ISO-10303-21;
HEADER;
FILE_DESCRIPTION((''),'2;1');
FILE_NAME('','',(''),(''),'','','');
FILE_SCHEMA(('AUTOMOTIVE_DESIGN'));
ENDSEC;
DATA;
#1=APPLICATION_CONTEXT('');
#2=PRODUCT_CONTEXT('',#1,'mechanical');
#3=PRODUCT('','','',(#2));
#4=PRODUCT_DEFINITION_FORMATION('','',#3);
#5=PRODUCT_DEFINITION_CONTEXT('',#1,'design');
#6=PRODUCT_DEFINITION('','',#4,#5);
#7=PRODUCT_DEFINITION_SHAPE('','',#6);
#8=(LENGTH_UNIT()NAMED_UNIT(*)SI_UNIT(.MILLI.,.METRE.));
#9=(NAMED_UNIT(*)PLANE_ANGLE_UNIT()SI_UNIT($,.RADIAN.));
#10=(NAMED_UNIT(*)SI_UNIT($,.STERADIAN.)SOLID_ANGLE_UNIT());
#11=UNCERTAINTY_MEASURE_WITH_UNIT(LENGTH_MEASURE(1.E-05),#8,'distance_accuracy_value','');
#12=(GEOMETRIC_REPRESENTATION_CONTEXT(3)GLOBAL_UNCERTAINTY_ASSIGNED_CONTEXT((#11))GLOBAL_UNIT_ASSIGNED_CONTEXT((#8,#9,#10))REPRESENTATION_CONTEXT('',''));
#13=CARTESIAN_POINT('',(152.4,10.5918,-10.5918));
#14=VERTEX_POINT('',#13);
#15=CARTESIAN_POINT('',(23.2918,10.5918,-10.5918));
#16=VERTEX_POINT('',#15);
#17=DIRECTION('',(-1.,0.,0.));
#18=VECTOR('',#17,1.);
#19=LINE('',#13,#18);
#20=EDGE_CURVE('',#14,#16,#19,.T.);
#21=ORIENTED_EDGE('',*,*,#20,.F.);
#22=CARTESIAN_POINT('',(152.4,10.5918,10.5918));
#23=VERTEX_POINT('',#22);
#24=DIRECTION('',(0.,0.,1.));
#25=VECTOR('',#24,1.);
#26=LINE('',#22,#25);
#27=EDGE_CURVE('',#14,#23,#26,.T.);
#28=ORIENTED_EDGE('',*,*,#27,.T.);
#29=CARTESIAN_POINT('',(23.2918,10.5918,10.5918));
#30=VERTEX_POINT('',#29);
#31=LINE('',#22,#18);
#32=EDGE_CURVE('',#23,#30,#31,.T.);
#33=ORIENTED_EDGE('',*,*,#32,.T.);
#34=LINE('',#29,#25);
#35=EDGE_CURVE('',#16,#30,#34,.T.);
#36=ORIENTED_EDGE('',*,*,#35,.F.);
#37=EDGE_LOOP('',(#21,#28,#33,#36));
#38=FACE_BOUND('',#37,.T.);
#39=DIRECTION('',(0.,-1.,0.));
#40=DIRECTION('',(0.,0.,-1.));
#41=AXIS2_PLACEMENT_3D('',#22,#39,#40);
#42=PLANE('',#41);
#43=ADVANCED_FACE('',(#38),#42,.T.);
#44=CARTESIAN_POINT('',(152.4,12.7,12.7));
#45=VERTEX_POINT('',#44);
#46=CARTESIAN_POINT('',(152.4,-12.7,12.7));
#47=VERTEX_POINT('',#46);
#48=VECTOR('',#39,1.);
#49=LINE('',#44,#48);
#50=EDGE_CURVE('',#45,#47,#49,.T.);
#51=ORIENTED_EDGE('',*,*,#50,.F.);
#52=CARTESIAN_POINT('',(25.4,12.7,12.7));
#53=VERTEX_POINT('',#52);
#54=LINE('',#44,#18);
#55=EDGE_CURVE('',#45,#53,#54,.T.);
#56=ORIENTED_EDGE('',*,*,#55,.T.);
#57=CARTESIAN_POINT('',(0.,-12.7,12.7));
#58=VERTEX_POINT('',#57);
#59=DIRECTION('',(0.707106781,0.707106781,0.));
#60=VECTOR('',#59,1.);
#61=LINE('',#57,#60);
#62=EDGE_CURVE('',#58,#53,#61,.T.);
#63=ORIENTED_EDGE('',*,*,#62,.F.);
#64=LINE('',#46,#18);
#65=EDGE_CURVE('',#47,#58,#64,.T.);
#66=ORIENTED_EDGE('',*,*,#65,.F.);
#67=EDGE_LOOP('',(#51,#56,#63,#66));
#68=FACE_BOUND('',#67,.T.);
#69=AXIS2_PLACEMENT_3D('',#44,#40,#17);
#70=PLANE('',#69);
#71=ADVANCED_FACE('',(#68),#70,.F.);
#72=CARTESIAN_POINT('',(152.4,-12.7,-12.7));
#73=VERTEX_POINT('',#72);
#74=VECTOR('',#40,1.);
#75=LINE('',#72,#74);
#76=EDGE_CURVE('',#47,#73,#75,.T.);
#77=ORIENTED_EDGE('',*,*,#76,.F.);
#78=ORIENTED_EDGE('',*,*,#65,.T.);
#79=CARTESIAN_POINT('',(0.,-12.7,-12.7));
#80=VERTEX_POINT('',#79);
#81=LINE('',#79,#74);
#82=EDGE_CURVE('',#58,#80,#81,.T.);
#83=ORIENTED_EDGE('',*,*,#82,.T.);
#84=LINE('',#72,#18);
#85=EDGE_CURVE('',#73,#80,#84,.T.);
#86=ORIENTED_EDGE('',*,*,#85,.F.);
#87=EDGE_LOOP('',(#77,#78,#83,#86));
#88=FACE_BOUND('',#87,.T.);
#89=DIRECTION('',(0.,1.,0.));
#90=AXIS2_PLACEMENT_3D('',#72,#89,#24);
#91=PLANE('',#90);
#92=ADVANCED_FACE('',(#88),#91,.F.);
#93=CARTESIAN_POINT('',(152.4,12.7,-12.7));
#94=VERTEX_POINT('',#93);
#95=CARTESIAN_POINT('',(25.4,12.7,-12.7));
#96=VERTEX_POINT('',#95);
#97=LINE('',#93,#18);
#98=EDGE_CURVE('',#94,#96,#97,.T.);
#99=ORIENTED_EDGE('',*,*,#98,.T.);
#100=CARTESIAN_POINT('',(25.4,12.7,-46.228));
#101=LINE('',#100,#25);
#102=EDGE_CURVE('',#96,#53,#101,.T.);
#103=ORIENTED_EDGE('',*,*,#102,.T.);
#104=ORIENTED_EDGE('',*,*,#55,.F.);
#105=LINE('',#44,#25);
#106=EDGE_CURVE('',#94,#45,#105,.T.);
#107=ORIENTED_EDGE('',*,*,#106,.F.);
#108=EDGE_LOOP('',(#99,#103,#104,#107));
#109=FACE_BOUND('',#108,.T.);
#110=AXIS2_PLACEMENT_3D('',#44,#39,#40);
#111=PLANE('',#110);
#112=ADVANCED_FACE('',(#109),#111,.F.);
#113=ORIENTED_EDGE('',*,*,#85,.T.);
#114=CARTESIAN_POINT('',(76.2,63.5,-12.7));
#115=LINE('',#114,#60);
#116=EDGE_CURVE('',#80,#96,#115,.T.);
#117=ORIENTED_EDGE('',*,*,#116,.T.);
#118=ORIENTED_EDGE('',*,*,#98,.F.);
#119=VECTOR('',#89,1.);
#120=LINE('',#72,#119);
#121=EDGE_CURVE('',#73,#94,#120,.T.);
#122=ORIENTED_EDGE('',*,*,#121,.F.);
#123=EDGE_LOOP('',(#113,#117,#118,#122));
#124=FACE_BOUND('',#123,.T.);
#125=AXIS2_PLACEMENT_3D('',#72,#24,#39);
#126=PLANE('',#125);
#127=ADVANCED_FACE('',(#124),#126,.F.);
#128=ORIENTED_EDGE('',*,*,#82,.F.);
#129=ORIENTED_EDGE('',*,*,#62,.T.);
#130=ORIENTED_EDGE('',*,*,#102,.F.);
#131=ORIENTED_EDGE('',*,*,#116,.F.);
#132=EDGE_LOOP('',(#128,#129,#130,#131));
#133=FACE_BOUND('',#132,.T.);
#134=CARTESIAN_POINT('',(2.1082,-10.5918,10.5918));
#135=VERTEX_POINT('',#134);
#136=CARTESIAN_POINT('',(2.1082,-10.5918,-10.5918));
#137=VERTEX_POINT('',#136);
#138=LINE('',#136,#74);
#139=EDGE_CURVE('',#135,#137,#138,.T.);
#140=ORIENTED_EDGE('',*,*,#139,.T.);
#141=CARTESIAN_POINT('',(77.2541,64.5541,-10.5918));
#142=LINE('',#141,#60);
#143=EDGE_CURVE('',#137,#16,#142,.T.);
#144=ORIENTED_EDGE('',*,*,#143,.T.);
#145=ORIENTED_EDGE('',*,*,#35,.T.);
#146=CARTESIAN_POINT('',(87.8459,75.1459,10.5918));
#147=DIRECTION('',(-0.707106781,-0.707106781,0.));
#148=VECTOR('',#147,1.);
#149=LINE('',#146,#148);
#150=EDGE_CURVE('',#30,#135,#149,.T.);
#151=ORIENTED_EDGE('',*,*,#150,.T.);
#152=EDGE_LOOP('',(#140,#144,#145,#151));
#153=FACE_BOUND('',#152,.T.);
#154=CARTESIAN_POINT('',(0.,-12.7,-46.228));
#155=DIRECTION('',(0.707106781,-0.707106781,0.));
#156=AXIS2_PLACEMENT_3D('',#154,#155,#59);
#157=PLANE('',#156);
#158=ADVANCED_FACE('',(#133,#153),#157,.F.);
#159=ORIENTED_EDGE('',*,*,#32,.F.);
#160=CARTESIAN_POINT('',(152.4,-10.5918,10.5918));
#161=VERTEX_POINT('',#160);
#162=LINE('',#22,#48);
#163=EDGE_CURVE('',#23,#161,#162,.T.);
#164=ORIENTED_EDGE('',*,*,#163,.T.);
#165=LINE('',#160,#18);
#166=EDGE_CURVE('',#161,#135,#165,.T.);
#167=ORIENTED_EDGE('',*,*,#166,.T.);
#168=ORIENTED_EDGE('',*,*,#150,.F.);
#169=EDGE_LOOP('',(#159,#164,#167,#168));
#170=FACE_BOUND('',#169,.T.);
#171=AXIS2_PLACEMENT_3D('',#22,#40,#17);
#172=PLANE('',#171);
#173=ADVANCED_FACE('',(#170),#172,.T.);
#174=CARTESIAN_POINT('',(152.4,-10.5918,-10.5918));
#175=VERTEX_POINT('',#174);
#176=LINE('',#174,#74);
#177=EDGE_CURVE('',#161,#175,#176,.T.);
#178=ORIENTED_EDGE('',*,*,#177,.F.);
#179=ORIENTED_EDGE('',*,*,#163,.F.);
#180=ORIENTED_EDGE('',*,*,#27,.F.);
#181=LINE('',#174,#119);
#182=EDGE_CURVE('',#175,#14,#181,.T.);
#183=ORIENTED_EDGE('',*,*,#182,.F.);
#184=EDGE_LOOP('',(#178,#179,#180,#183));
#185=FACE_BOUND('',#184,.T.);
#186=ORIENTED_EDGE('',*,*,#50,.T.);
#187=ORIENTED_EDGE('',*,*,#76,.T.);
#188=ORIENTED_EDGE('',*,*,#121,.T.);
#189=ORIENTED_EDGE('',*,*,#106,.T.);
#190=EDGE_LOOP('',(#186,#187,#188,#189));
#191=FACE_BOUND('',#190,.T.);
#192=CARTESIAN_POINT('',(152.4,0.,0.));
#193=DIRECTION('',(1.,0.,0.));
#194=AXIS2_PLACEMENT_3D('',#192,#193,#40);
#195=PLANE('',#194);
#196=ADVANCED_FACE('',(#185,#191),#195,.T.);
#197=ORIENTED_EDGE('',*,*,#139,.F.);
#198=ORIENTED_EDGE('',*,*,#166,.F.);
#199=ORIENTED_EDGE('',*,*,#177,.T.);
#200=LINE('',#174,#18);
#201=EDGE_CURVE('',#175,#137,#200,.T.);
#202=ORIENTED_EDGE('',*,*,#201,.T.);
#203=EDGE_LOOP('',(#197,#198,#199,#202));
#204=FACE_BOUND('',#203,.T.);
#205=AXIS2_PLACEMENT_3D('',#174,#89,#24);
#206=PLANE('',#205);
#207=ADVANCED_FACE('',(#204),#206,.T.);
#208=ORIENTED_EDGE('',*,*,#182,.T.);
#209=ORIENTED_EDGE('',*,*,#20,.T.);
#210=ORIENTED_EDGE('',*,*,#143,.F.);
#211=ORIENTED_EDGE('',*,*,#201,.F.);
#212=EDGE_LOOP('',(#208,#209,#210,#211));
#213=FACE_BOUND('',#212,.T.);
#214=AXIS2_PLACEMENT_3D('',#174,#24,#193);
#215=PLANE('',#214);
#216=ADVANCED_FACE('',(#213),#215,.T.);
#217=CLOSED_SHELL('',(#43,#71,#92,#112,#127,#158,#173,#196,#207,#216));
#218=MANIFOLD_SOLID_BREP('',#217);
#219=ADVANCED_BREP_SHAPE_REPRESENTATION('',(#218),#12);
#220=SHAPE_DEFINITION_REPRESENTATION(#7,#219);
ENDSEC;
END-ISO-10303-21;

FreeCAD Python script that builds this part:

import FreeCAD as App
import Part
import Sketcher
Q = App.Units.Quantity


def add_polygon(sketch, points):
    """Adds a closed chain of lines whose ends are joined by coincident constraints."""
    first, n = sketch.GeometryCount, len(points)
    for a, b in zip(points, points[1:] + points[:1]):
        sketch.addGeometry(Part.LineSegment(App.Vector(*a, 0), App.Vector(*b, 0)), False)
    for i in range(n):
        sketch.addConstraint(Sketcher.Constraint("Coincident", first + i, 2, first + (i + 1) % n, 1))

doc = App.newDocument("Part")
params = doc.addObject("Spreadsheet::Sheet", "Params")
for row, (alias, value) in enumerate([
    ("sketch1_width", "1 in"),
    ("sketch1_width2", "0.834 in"),
    ("pad1_length", "6 in"),
    ("sketch2_width", "1 in"),
    ("pocket1_length", "2.32 in"),
], start=1):
    params.set(f"A{row}", alias)
    params.set(f"B{row}", "=" + value)
    params.setAlias(f"B{row}", alias)

body = doc.addObject("PartDesign::Body", "Body")

# Sketch on YZ plane
sketch1 = doc.addObject("Sketcher::SketchObject", "Sketch")
body.addObject(sketch1)
sketch1.AttachmentSupport = (doc.YZ_Plane, [""])
sketch1.MapMode = "FlatFace"
add_polygon(sketch1, [(-13, 13), (-13, -13), (13, -13), (13, 13)])  # lines 0-3
add_polygon(sketch1, [(11, -11), (-11, -11), (-11, 11), (11, 11)])  # lines 4-7
sketch1.addConstraint([
    Sketcher.Constraint("Vertical", 0),
    Sketcher.Constraint("Horizontal", 1),
    Sketcher.Constraint("Vertical", 2),
    Sketcher.Constraint("Horizontal", 3),
    Sketcher.Constraint("Horizontal", 4),
    Sketcher.Constraint("Vertical", 5),
    Sketcher.Constraint("Horizontal", 6),
    Sketcher.Constraint("Vertical", 7),
    Sketcher.Constraint("Symmetric", 0, 2, 2, 2, -1, 1),
    Sketcher.Constraint("Symmetric", 4, 2, 6, 2, -1, 1),
    Sketcher.Constraint("Equal", 3, 0),
    Sketcher.Constraint("Equal", 6, 5),
    Sketcher.Constraint("DistanceX", 1, 1, 1, 2, Q("1 in")),
    Sketcher.Constraint("DistanceX", 4, 2, 4, 1, Q("0.834 in")),
])
sketch1.setExpression("Constraints[20]", "Params.sketch1_width")
sketch1.setExpression("Constraints[21]", "Params.sketch1_width2")
pad1 = doc.addObject("PartDesign::Pad", "Pad")
body.addObject(pad1)
pad1.Profile = sketch1
pad1.setExpression("Length", "Params.pad1_length")

# Sketch on XY plane
sketch2 = doc.addObject("Sketcher::SketchObject", "Sketch001")
body.addObject(sketch2)
sketch2.AttachmentSupport = (doc.XY_Plane, [""])
sketch2.MapMode = "FlatFace"
sketch2.AttachmentOffset = App.Placement(App.Vector(0, 0, 0.5 * 25.4), App.Rotation())
add_polygon(sketch2, [(0, -13), (25, 13), (0, 13)])  # lines 0-2
sketch2.addConstraint([
    Sketcher.Constraint("Horizontal", 1),
    Sketcher.Constraint("Vertical", 2),
    Sketcher.Constraint("Symmetric", 1, 2, 2, 2, -1, 1),
    Sketcher.Constraint("Equal", 1, 2),
    Sketcher.Constraint("DistanceX", 1, 2, 1, 1, Q("1 in")),
])
sketch2.setExpression("Constraints[7]", "Params.sketch2_width")
pocket1 = doc.addObject("PartDesign::Pocket", "Pocket")
body.addObject(pocket1)
pocket1.Profile = sketch2
pocket1.setExpression("Length", "Params.pocket1_length")

doc.recompute()
